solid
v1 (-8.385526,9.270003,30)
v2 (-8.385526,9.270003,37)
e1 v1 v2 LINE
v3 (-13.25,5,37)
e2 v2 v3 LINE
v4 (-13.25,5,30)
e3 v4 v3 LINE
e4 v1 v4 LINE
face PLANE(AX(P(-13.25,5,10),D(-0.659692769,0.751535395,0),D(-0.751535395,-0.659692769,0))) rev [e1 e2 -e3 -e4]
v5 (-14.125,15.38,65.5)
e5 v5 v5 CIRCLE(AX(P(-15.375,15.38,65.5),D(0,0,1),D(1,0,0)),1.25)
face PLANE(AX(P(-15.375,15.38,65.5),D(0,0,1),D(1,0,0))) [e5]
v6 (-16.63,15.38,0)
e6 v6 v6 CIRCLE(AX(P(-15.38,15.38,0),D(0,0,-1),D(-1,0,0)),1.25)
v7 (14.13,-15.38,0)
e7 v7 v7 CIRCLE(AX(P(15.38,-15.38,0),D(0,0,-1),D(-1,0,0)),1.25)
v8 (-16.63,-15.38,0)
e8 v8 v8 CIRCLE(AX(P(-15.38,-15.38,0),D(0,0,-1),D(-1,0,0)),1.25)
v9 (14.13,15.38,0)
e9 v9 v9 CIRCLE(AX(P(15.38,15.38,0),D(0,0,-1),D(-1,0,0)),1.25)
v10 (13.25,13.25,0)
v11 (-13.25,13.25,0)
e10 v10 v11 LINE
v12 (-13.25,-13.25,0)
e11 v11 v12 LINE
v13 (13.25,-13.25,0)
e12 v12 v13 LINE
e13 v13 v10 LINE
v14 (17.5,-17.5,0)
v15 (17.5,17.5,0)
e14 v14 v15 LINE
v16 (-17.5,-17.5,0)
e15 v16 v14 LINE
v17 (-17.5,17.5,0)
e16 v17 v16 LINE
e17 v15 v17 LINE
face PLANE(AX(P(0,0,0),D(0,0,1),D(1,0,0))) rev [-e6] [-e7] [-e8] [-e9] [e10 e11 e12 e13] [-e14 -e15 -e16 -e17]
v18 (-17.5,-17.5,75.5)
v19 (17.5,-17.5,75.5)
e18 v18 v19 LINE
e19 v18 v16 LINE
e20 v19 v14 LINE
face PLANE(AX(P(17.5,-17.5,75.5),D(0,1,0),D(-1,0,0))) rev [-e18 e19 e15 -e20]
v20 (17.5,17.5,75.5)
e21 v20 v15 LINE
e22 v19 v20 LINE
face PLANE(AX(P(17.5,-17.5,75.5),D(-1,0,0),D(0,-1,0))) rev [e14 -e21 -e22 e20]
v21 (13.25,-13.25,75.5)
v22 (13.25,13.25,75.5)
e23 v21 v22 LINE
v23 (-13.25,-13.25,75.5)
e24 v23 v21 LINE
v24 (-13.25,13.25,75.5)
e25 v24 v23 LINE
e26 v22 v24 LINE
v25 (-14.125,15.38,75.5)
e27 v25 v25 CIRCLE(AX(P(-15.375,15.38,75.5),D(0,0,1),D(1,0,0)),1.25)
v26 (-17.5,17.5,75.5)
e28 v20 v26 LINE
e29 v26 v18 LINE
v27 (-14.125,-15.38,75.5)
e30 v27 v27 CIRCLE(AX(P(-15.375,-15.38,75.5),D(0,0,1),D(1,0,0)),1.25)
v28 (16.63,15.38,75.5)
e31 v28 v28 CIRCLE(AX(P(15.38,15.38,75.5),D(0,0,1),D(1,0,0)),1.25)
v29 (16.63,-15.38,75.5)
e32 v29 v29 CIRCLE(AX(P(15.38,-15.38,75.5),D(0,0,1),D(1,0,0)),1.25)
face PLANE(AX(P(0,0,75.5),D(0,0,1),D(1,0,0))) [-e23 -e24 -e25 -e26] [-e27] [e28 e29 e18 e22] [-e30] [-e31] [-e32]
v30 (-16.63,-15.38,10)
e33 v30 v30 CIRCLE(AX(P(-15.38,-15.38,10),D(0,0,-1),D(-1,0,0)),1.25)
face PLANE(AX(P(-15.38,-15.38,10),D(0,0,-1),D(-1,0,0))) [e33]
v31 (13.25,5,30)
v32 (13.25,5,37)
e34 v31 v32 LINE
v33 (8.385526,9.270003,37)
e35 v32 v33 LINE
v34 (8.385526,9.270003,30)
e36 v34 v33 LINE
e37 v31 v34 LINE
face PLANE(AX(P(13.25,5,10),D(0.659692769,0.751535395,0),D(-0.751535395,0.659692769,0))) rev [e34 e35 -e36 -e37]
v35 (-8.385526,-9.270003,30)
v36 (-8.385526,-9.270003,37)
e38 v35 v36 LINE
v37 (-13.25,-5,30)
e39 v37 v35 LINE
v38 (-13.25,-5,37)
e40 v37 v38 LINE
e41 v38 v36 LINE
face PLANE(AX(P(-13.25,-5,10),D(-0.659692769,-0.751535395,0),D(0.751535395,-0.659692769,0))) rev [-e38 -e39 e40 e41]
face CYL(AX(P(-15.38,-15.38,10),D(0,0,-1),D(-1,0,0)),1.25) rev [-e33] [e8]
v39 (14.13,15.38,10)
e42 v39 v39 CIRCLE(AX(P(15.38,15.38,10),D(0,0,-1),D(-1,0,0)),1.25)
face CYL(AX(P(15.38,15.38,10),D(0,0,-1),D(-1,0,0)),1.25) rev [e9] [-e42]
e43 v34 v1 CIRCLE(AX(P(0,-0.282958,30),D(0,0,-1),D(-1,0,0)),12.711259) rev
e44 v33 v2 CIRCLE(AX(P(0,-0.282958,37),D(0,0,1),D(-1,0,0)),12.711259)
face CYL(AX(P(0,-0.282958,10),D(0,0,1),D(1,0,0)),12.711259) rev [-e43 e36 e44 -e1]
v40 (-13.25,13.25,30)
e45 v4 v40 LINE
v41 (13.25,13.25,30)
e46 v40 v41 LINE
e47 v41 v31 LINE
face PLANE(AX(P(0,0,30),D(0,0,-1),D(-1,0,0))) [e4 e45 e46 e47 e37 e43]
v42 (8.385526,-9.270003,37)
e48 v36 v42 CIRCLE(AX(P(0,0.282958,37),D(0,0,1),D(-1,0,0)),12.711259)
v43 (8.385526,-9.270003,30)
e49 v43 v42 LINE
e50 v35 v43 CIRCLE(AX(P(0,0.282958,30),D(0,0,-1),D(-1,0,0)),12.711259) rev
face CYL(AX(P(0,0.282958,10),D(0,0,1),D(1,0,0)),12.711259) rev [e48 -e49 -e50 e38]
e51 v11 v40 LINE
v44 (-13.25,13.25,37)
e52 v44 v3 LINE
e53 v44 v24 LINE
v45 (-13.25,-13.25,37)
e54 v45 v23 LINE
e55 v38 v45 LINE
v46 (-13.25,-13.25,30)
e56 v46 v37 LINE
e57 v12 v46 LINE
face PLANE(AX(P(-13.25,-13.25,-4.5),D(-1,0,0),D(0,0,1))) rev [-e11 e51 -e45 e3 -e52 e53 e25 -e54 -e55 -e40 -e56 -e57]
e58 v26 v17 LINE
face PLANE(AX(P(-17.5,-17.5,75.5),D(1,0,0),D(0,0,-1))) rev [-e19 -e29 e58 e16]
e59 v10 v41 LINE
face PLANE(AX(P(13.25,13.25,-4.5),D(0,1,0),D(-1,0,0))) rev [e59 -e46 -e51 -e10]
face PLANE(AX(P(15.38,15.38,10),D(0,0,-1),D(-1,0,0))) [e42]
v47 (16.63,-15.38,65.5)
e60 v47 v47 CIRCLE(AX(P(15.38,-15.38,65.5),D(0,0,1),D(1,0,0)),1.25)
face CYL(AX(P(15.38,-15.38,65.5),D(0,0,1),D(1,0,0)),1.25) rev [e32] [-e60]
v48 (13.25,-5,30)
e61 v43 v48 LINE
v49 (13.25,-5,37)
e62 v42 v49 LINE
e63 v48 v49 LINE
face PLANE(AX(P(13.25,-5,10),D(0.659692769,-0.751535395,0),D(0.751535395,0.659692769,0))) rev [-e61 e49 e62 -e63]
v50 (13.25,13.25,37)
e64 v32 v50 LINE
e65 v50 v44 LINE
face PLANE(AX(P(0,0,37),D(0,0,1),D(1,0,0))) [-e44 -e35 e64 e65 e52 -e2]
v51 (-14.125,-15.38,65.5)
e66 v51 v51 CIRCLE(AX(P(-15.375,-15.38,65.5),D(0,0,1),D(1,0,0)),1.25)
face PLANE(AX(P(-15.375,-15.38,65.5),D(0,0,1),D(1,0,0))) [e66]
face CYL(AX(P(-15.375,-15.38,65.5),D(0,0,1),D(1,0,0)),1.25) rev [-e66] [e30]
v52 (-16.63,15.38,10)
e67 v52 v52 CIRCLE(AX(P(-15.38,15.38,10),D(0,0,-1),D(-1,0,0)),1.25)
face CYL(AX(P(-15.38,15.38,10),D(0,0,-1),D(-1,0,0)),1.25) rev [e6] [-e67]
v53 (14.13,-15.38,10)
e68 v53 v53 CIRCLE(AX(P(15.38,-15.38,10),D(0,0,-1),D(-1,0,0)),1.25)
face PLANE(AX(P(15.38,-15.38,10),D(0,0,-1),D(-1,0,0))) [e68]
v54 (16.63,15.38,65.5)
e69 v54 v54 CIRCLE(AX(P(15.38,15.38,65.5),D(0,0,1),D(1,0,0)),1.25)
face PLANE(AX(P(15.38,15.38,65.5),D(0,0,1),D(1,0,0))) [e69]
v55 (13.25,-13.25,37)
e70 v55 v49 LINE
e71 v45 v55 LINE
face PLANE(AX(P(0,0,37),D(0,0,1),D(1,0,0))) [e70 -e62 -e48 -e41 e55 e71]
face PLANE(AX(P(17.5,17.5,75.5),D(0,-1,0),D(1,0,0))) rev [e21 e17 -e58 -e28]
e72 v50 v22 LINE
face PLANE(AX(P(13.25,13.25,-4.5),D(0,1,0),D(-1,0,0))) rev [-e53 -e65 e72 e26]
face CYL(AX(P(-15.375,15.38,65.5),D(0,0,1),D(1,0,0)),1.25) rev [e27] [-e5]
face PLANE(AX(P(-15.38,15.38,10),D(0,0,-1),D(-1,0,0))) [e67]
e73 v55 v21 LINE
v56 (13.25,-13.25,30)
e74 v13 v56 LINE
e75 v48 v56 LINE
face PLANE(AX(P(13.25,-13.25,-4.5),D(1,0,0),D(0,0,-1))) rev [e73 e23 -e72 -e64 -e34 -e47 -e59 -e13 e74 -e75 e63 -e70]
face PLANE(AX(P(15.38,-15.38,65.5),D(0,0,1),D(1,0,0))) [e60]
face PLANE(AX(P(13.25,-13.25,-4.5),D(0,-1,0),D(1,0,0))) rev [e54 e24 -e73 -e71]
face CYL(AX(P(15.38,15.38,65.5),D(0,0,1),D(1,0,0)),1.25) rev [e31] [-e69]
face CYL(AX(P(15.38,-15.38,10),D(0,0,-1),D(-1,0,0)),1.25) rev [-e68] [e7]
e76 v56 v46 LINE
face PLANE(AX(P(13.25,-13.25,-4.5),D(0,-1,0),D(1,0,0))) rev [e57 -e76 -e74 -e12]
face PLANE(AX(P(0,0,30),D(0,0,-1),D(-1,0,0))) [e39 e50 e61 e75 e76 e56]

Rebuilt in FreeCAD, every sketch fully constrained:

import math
import FreeCAD as App
import Part
import Sketcher
Q = App.Units.Quantity

doc = App.newDocument("Part")
body = doc.addObject("PartDesign::Body", "Body")

sketch1 = body.newObject("Sketcher::SketchObject", "Sketch")
sketch1.AttachmentSupport = (doc.getObject("XY_Plane"), [""])
sketch1.MapMode = "FlatFace"
sketch1.addGeometry([
    Part.LineSegment(App.Vector(-18, 18, 0), App.Vector(-18, -18, 0)),
    Part.LineSegment(App.Vector(-18, -18, 0), App.Vector(18, -18, 0)),
    Part.LineSegment(App.Vector(18, -18, 0), App.Vector(18, 18, 0)),
    Part.LineSegment(App.Vector(18, 18, 0), App.Vector(-18, 18, 0)),
], False)
sketch1.addConstraint([
    Sketcher.Constraint("Coincident", 0, 2, 1, 1),
    Sketcher.Constraint("Coincident", 1, 2, 2, 1),
    Sketcher.Constraint("Coincident", 2, 2, 3, 1),
    Sketcher.Constraint("Coincident", 3, 2, 0, 1),
    Sketcher.Constraint("Vertical", 0),
    Sketcher.Constraint("Horizontal", 1),
    Sketcher.Constraint("Vertical", 2),
    Sketcher.Constraint("Horizontal", 3),
    Sketcher.Constraint("Symmetric", 0, 2, 2, 2, -1, 1),
    Sketcher.Constraint("Equal", 3, 0),
    Sketcher.Constraint("DistanceX", 1, 1, 1, 2, Q("35 mm")),
])
pad1 = body.newObject("PartDesign::Pad", "Pad")
pad1.Profile = sketch1
pad1.Length = 75.5

sketch2 = body.newObject("Sketcher::SketchObject", "Sketch001")
sketch2.AttachmentSupport = (doc.getObject("XY_Plane"), [""])
sketch2.MapMode = "FlatFace"
sketch2.AttachmentOffset = App.Placement(App.Vector(0, 0, 75.5), App.Rotation())
sketch2.addGeometry([
    Part.LineSegment(App.Vector(-13, 13, 0), App.Vector(-13, -13, 0)),
    Part.LineSegment(App.Vector(-13, -13, 0), App.Vector(13, -13, 0)),
    Part.LineSegment(App.Vector(13, -13, 0), App.Vector(13, 13, 0)),
    Part.LineSegment(App.Vector(13, 13, 0), App.Vector(-13, 13, 0)),
], False)
sketch2.addConstraint([
    Sketcher.Constraint("Coincident", 0, 2, 1, 1),
    Sketcher.Constraint("Coincident", 1, 2, 2, 1),
    Sketcher.Constraint("Coincident", 2, 2, 3, 1),
    Sketcher.Constraint("Coincident", 3, 2, 0, 1),
    Sketcher.Constraint("Vertical", 0),
    Sketcher.Constraint("Horizontal", 1),
    Sketcher.Constraint("Vertical", 2),
    Sketcher.Constraint("Horizontal", 3),
    Sketcher.Constraint("Symmetric", 0, 2, 2, 2, -1, 1),
    Sketcher.Constraint("Equal", 3, 0),
    Sketcher.Constraint("DistanceX", 1, 1, 1, 2, Q("26.5 mm")),
])
pocket1 = body.newObject("PartDesign::Pocket", "Pocket")
pocket1.Profile = sketch2
pocket1.Length = 80

sketch3 = body.newObject("Sketcher::SketchObject", "Sketch002")
sketch3.AttachmentSupport = (doc.getObject("XY_Plane"), [""])
sketch3.MapMode = "FlatFace"
sketch3.AttachmentOffset = App.Placement(App.Vector(0, 0, 75.5), App.Rotation())
sketch3.addGeometry([
    Part.Circle(App.Vector(-15.4, 15.4, 0), App.Vector(0, 0, 1), 1.2),
    Part.Circle(App.Vector(15.4, 15.4, 0), App.Vector(0, 0, 1), 1.2),
    Part.Circle(App.Vector(15.4, -15.4, 0), App.Vector(0, 0, 1), 1.2),
    Part.Circle(App.Vector(-15.4, -15.4, 0), App.Vector(0, 0, 1), 1.2),
], False)
sketch3.addConstraint([
    Sketcher.Constraint("Equal", 0, 1),
    Sketcher.Constraint("Equal", 1, 2),
    Sketcher.Constraint("Equal", 2, 3),
    Sketcher.Constraint("Symmetric", 1, 3, 2, 3, -1),
    Sketcher.Constraint("Symmetric", 0, 3, 3, 3, -1),
    Sketcher.Constraint("Horizontal", 0, 3, 1, 3),
    Sketcher.Constraint("Diameter", 0, Q("2.5 mm")),
    Sketcher.Constraint("DistanceY", -1, 1, 0, 3, Q("15.38 mm")),
    Sketcher.Constraint("DistanceX", -1, 1, 1, 3, Q("15.38 mm")),
    Sketcher.Constraint("DistanceX", 0, 3, -1, 1, Q("15.375 mm")),
])
pocket2 = body.newObject("PartDesign::Pocket", "Pocket001")
pocket2.Profile = sketch3
pocket2.Length = 10

sketch4 = body.newObject("Sketcher::SketchObject", "Sketch003")
sketch4.AttachmentSupport = (doc.getObject("XY_Plane"), [""])
sketch4.MapMode = "FlatFace"
sketch4.AttachmentOffset = App.Placement(App.Vector(0, 0, 7), App.Rotation())
sketch4.addGeometry([
    Part.LineSegment(App.Vector(-13, 13, 0), App.Vector(-13, -13, 0)),
    Part.LineSegment(App.Vector(-13, -13, 0), App.Vector(13, -13, 0)),
    Part.LineSegment(App.Vector(13, -13, 0), App.Vector(13, 13, 0)),
    Part.LineSegment(App.Vector(13, 13, 0), App.Vector(-13, 13, 0)),
], False)
sketch4.addConstraint([
    Sketcher.Constraint("Coincident", 0, 2, 1, 1),
    Sketcher.Constraint("Coincident", 1, 2, 2, 1),
    Sketcher.Constraint("Coincident", 2, 2, 3, 1),
    Sketcher.Constraint("Coincident", 3, 2, 0, 1),
    Sketcher.Constraint("Vertical", 0),
    Sketcher.Constraint("Horizontal", 1),
    Sketcher.Constraint("Vertical", 2),
    Sketcher.Constraint("Horizontal", 3),
    Sketcher.Constraint("Symmetric", 0, 2, 2, 2, -1, 1),
    Sketcher.Constraint("Equal", 3, 0),
    Sketcher.Constraint("DistanceX", 1, 1, 1, 2, Q("26.5 mm")),
])
pad2 = body.newObject("PartDesign::Pad", "Pad001")
pad2.Profile = sketch4
pad2.Length = 30

sketch5 = body.newObject("Sketcher::SketchObject", "Sketch004")
sketch5.AttachmentSupport = (doc.getObject("XY_Plane"), [""])
sketch5.MapMode = "FlatFace"
sketch5.AttachmentOffset = App.Placement(App.Vector(0, 0, 37), App.Rotation())
sketch5.addGeometry([
    Part.LineSegment(App.Vector(13.25, -5, 0), App.Vector(13.25, 5, 0)),
    Part.LineSegment(App.Vector(13.25, 5, 0), App.Vector(8.385526, 9.270003, 0)),
    Part.ArcOfCircle(Part.Circle(App.Vector(0, -0.282958, 0), App.Vector(0, 0, 1), 12.711259), math.radians(48.723554), math.radians(131.276446)),
    Part.LineSegment(App.Vector(-8.385526, 9.270003, 0), App.Vector(-13.25, 5, 0)),
    Part.LineSegment(App.Vector(-13.25, 5, 0), App.Vector(-13.25, -5, 0)),
    Part.LineSegment(App.Vector(-13.25, -5, 0), App.Vector(-8.385526, -9.270003, 0)),
    Part.ArcOfCircle(Part.Circle(App.Vector(0, 0.282958, 0), App.Vector(0, 0, 1), 12.711259), math.radians(-131.276446), math.radians(-48.723554)),
    Part.LineSegment(App.Vector(8.385526, -9.270003, 0), App.Vector(13.25, -5, 0)),
], False)
sketch5.addConstraint([
    Sketcher.Constraint("Coincident", 0, 2, 1, 1),
    Sketcher.Constraint("Tangent", 1, 2, 2, 1),
    Sketcher.Constraint("Tangent", 2, 2, 3, 1),
    Sketcher.Constraint("Coincident", 3, 2, 4, 1),
    Sketcher.Constraint("Coincident", 4, 2, 5, 1),
    Sketcher.Constraint("Tangent", 5, 2, 6, 1),
    Sketcher.Constraint("Tangent", 6, 2, 7, 1),
    Sketcher.Constraint("Coincident", 7, 2, 0, 1),
    Sketcher.Constraint("Vertical", 0),
    Sketcher.Constraint("Vertical", 4),
    Sketcher.Constraint("Equal", 2, 6),
    Sketcher.Constraint("Symmetric", 2, 3, 6, 3, -1, 1),
    Sketcher.Constraint("Symmetric", 0, 2, 4, 2, -1, 1),
    Sketcher.Constraint("Symmetric", 1, 2, 2, 2, -2),
    Sketcher.Constraint("Parallel", 3, 7),
    Sketcher.Constraint("DistanceY", 0, 1, 0, 2, Q("10 mm")),
    Sketcher.Constraint("DistanceX", 3, 2, 0, 2, Q("26.5 mm")),
    Sketcher.Constraint("Radius", 2, Q("12.711259 mm")),
    Sketcher.Constraint("DistanceY", 2, 3, 1, 2, Q("9.552961 mm")),
])
pocket3 = body.newObject("PartDesign::Pocket", "Pocket002")
pocket3.Profile = sketch5
pocket3.Length = 27

sketch6 = body.newObject("Sketcher::SketchObject", "Sketch005")
sketch6.AttachmentSupport = (doc.getObject("XY_Plane"), [""])
sketch6.MapMode = "FlatFace"
sketch6.AttachmentOffset = App.Placement(App.Vector(0, 0, 7), App.Rotation())
sketch6.addGeometry([
    Part.LineSegment(App.Vector(13, 13, 0), App.Vector(13, -13, 0)),
    Part.LineSegment(App.Vector(13, -13, 0), App.Vector(-13, -13, 0)),
    Part.LineSegment(App.Vector(-13, -13, 0), App.Vector(-13, 13, 0)),
    Part.LineSegment(App.Vector(-13, 13, 0), App.Vector(13, 13, 0)),
], False)
sketch6.addConstraint([
    Sketcher.Constraint("Coincident", 0, 2, 1, 1),
    Sketcher.Constraint("Coincident", 1, 2, 2, 1),
    Sketcher.Constraint("Coincident", 2, 2, 3, 1),
    Sketcher.Constraint("Coincident", 3, 2, 0, 1),
    Sketcher.Constraint("Vertical", 0),
    Sketcher.Constraint("Horizontal", 1),
    Sketcher.Constraint("Vertical", 2),
    Sketcher.Constraint("Horizontal", 3),
    Sketcher.Constraint("Symmetric", 0, 2, 2, 2, -1, 1),
    Sketcher.Constraint("Equal", 3, 0),
    Sketcher.Constraint("DistanceX", 1, 2, 1, 1, Q("26.5 mm")),
])
pocket4 = body.newObject("PartDesign::Pocket", "Pocket003")
pocket4.Profile = sketch6
pocket4.Length = 23
pocket4.Reversed = True

sketch7 = body.newObject("Sketcher::SketchObject", "Sketch006")
sketch7.AttachmentSupport = (doc.getObject("XY_Plane"), [""])
sketch7.MapMode = "FlatFace"
sketch7.AttachmentOffset = App.Placement(App.Vector(0, 0, 10), App.Rotation())
sketch7.addGeometry([
    Part.Circle(App.Vector(15.4, 15.4, 0), App.Vector(0, 0, 1), 1.2),
    Part.Circle(App.Vector(-15.4, 15.4, 0), App.Vector(0, 0, 1), 1.2),
    Part.Circle(App.Vector(-15.4, -15.4, 0), App.Vector(0, 0, 1), 1.2),
    Part.Circle(App.Vector(15.4, -15.4, 0), App.Vector(0, 0, 1), 1.2),
], False)
sketch7.addConstraint([
    Sketcher.Constraint("Equal", 0, 1),
    Sketcher.Constraint("Equal", 1, 2),
    Sketcher.Constraint("Equal", 2, 3),
    Sketcher.Constraint("Symmetric", 0, 3, 2, 3, -1, 1),
    Sketcher.Constraint("Symmetric", 1, 3, 3, 3, -1, 1),
    Sketcher.Constraint("Symmetric", 0, 3, 1, 3, -2),
    Sketcher.Constraint("Diameter", 0, Q("2.5 mm")),
    Sketcher.Constraint("DistanceX", -1, 1, 0, 3, Q("15.38 mm")),
    Sketcher.Constraint("DistanceY", -1, 1, 0, 3, Q("15.38 mm")),
])
pocket5 = body.newObject("PartDesign::Pocket", "Pocket004")
pocket5.Profile = sketch7
pocket5.Length = 10

doc.recompute()
